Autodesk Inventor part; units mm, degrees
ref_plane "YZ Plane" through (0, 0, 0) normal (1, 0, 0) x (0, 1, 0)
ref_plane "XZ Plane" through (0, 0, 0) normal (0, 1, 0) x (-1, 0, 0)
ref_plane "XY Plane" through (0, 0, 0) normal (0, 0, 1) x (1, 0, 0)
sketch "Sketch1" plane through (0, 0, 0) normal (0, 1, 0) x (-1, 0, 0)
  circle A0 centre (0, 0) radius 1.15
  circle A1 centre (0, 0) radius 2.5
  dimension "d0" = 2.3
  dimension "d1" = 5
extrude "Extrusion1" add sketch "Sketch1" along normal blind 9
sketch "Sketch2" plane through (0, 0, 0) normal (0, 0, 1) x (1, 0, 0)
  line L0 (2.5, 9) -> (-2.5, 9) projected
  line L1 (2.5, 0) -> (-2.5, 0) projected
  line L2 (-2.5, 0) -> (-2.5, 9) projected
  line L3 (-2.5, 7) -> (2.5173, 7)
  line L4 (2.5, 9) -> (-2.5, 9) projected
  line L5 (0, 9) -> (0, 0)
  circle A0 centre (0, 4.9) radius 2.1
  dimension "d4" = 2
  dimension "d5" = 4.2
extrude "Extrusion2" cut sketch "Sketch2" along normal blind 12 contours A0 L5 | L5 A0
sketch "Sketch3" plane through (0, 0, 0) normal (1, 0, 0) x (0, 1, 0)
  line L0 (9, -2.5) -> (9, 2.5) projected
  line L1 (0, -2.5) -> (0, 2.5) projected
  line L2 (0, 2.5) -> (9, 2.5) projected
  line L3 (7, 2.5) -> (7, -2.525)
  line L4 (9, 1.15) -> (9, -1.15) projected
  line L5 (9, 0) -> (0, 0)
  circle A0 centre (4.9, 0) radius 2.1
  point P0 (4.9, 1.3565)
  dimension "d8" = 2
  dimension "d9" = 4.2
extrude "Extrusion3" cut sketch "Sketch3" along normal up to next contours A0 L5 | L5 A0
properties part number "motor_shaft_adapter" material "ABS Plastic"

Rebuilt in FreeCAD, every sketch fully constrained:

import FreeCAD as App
import Part
import Sketcher

V = App.Vector
Q = App.Units.Quantity

doc = App.newDocument("Part")
body = doc.addObject("PartDesign::Body", "Body")

# Sketch on XZ plane
sketch1 = body.newObject("Sketcher::SketchObject", "Sketch")
sketch1.AttachmentSupport = (doc.getObject("XZ_Plane"), [""])
sketch1.MapMode = "FlatFace"
sketch1.addGeometry([
    Part.Circle(V(0, 0, 0), V(0, 0, 1), 2.5),
    Part.Circle(V(0, 0, 0), V(0, 0, 1), 1.1),
], False)
sketch1.addConstraint([
    Sketcher.Constraint("Coincident", 0, 3, -1, 1),
    Sketcher.Constraint("Coincident", 1, 3, -1, 1),
    Sketcher.Constraint("Diameter", 0, Q("5 mm")),
    Sketcher.Constraint("Diameter", 1, Q("2.3 mm")),
])
pad1 = body.newObject("PartDesign::Pad", "Pad")
pad1.Profile = sketch1
pad1.Length = 9
pad1.Reversed = True

# Sketch on XY plane
sketch2 = body.newObject("Sketcher::SketchObject", "Sketch001")
sketch2.AttachmentSupport = (doc.getObject("XY_Plane"), [""])
sketch2.MapMode = "FlatFace"
sketch2.addGeometry(Part.Circle(V(0, 4.9, 0), V(0, 0, 1), 2.1), False)
sketch2.addConstraint([
    Sketcher.Constraint("PointOnObject", 0, 3, -2),
    Sketcher.Constraint("Diameter", 0, Q("4.2 mm")),
    Sketcher.Constraint("DistanceY", -1, 1, 0, 3, Q("4.9 mm")),
])
pocket1 = body.newObject("PartDesign::Pocket", "Pocket")
pocket1.Profile = sketch2
pocket1.Length = 12
pocket1.Reversed = True

# Sketch on YZ plane
sketch3 = body.newObject("Sketcher::SketchObject", "Sketch002")
sketch3.AttachmentSupport = (doc.getObject("YZ_Plane"), [""])
sketch3.MapMode = "FlatFace"
sketch3.addGeometry(Part.Circle(V(4.9, 0, 0), V(0, 0, 1), 2.1), False)
sketch3.addConstraint([
    Sketcher.Constraint("PointOnObject", 0, 3, -1),
    Sketcher.Constraint("Diameter", 0, Q("4.2 mm")),
    Sketcher.Constraint("DistanceX", -1, 1, 0, 3, Q("4.9 mm")),
])
pocket2 = body.newObject("PartDesign::Pocket", "Pocket001")
pocket2.Profile = sketch3
pocket2.Length = 2.5
pocket2.Reversed = True

doc.recompute()
